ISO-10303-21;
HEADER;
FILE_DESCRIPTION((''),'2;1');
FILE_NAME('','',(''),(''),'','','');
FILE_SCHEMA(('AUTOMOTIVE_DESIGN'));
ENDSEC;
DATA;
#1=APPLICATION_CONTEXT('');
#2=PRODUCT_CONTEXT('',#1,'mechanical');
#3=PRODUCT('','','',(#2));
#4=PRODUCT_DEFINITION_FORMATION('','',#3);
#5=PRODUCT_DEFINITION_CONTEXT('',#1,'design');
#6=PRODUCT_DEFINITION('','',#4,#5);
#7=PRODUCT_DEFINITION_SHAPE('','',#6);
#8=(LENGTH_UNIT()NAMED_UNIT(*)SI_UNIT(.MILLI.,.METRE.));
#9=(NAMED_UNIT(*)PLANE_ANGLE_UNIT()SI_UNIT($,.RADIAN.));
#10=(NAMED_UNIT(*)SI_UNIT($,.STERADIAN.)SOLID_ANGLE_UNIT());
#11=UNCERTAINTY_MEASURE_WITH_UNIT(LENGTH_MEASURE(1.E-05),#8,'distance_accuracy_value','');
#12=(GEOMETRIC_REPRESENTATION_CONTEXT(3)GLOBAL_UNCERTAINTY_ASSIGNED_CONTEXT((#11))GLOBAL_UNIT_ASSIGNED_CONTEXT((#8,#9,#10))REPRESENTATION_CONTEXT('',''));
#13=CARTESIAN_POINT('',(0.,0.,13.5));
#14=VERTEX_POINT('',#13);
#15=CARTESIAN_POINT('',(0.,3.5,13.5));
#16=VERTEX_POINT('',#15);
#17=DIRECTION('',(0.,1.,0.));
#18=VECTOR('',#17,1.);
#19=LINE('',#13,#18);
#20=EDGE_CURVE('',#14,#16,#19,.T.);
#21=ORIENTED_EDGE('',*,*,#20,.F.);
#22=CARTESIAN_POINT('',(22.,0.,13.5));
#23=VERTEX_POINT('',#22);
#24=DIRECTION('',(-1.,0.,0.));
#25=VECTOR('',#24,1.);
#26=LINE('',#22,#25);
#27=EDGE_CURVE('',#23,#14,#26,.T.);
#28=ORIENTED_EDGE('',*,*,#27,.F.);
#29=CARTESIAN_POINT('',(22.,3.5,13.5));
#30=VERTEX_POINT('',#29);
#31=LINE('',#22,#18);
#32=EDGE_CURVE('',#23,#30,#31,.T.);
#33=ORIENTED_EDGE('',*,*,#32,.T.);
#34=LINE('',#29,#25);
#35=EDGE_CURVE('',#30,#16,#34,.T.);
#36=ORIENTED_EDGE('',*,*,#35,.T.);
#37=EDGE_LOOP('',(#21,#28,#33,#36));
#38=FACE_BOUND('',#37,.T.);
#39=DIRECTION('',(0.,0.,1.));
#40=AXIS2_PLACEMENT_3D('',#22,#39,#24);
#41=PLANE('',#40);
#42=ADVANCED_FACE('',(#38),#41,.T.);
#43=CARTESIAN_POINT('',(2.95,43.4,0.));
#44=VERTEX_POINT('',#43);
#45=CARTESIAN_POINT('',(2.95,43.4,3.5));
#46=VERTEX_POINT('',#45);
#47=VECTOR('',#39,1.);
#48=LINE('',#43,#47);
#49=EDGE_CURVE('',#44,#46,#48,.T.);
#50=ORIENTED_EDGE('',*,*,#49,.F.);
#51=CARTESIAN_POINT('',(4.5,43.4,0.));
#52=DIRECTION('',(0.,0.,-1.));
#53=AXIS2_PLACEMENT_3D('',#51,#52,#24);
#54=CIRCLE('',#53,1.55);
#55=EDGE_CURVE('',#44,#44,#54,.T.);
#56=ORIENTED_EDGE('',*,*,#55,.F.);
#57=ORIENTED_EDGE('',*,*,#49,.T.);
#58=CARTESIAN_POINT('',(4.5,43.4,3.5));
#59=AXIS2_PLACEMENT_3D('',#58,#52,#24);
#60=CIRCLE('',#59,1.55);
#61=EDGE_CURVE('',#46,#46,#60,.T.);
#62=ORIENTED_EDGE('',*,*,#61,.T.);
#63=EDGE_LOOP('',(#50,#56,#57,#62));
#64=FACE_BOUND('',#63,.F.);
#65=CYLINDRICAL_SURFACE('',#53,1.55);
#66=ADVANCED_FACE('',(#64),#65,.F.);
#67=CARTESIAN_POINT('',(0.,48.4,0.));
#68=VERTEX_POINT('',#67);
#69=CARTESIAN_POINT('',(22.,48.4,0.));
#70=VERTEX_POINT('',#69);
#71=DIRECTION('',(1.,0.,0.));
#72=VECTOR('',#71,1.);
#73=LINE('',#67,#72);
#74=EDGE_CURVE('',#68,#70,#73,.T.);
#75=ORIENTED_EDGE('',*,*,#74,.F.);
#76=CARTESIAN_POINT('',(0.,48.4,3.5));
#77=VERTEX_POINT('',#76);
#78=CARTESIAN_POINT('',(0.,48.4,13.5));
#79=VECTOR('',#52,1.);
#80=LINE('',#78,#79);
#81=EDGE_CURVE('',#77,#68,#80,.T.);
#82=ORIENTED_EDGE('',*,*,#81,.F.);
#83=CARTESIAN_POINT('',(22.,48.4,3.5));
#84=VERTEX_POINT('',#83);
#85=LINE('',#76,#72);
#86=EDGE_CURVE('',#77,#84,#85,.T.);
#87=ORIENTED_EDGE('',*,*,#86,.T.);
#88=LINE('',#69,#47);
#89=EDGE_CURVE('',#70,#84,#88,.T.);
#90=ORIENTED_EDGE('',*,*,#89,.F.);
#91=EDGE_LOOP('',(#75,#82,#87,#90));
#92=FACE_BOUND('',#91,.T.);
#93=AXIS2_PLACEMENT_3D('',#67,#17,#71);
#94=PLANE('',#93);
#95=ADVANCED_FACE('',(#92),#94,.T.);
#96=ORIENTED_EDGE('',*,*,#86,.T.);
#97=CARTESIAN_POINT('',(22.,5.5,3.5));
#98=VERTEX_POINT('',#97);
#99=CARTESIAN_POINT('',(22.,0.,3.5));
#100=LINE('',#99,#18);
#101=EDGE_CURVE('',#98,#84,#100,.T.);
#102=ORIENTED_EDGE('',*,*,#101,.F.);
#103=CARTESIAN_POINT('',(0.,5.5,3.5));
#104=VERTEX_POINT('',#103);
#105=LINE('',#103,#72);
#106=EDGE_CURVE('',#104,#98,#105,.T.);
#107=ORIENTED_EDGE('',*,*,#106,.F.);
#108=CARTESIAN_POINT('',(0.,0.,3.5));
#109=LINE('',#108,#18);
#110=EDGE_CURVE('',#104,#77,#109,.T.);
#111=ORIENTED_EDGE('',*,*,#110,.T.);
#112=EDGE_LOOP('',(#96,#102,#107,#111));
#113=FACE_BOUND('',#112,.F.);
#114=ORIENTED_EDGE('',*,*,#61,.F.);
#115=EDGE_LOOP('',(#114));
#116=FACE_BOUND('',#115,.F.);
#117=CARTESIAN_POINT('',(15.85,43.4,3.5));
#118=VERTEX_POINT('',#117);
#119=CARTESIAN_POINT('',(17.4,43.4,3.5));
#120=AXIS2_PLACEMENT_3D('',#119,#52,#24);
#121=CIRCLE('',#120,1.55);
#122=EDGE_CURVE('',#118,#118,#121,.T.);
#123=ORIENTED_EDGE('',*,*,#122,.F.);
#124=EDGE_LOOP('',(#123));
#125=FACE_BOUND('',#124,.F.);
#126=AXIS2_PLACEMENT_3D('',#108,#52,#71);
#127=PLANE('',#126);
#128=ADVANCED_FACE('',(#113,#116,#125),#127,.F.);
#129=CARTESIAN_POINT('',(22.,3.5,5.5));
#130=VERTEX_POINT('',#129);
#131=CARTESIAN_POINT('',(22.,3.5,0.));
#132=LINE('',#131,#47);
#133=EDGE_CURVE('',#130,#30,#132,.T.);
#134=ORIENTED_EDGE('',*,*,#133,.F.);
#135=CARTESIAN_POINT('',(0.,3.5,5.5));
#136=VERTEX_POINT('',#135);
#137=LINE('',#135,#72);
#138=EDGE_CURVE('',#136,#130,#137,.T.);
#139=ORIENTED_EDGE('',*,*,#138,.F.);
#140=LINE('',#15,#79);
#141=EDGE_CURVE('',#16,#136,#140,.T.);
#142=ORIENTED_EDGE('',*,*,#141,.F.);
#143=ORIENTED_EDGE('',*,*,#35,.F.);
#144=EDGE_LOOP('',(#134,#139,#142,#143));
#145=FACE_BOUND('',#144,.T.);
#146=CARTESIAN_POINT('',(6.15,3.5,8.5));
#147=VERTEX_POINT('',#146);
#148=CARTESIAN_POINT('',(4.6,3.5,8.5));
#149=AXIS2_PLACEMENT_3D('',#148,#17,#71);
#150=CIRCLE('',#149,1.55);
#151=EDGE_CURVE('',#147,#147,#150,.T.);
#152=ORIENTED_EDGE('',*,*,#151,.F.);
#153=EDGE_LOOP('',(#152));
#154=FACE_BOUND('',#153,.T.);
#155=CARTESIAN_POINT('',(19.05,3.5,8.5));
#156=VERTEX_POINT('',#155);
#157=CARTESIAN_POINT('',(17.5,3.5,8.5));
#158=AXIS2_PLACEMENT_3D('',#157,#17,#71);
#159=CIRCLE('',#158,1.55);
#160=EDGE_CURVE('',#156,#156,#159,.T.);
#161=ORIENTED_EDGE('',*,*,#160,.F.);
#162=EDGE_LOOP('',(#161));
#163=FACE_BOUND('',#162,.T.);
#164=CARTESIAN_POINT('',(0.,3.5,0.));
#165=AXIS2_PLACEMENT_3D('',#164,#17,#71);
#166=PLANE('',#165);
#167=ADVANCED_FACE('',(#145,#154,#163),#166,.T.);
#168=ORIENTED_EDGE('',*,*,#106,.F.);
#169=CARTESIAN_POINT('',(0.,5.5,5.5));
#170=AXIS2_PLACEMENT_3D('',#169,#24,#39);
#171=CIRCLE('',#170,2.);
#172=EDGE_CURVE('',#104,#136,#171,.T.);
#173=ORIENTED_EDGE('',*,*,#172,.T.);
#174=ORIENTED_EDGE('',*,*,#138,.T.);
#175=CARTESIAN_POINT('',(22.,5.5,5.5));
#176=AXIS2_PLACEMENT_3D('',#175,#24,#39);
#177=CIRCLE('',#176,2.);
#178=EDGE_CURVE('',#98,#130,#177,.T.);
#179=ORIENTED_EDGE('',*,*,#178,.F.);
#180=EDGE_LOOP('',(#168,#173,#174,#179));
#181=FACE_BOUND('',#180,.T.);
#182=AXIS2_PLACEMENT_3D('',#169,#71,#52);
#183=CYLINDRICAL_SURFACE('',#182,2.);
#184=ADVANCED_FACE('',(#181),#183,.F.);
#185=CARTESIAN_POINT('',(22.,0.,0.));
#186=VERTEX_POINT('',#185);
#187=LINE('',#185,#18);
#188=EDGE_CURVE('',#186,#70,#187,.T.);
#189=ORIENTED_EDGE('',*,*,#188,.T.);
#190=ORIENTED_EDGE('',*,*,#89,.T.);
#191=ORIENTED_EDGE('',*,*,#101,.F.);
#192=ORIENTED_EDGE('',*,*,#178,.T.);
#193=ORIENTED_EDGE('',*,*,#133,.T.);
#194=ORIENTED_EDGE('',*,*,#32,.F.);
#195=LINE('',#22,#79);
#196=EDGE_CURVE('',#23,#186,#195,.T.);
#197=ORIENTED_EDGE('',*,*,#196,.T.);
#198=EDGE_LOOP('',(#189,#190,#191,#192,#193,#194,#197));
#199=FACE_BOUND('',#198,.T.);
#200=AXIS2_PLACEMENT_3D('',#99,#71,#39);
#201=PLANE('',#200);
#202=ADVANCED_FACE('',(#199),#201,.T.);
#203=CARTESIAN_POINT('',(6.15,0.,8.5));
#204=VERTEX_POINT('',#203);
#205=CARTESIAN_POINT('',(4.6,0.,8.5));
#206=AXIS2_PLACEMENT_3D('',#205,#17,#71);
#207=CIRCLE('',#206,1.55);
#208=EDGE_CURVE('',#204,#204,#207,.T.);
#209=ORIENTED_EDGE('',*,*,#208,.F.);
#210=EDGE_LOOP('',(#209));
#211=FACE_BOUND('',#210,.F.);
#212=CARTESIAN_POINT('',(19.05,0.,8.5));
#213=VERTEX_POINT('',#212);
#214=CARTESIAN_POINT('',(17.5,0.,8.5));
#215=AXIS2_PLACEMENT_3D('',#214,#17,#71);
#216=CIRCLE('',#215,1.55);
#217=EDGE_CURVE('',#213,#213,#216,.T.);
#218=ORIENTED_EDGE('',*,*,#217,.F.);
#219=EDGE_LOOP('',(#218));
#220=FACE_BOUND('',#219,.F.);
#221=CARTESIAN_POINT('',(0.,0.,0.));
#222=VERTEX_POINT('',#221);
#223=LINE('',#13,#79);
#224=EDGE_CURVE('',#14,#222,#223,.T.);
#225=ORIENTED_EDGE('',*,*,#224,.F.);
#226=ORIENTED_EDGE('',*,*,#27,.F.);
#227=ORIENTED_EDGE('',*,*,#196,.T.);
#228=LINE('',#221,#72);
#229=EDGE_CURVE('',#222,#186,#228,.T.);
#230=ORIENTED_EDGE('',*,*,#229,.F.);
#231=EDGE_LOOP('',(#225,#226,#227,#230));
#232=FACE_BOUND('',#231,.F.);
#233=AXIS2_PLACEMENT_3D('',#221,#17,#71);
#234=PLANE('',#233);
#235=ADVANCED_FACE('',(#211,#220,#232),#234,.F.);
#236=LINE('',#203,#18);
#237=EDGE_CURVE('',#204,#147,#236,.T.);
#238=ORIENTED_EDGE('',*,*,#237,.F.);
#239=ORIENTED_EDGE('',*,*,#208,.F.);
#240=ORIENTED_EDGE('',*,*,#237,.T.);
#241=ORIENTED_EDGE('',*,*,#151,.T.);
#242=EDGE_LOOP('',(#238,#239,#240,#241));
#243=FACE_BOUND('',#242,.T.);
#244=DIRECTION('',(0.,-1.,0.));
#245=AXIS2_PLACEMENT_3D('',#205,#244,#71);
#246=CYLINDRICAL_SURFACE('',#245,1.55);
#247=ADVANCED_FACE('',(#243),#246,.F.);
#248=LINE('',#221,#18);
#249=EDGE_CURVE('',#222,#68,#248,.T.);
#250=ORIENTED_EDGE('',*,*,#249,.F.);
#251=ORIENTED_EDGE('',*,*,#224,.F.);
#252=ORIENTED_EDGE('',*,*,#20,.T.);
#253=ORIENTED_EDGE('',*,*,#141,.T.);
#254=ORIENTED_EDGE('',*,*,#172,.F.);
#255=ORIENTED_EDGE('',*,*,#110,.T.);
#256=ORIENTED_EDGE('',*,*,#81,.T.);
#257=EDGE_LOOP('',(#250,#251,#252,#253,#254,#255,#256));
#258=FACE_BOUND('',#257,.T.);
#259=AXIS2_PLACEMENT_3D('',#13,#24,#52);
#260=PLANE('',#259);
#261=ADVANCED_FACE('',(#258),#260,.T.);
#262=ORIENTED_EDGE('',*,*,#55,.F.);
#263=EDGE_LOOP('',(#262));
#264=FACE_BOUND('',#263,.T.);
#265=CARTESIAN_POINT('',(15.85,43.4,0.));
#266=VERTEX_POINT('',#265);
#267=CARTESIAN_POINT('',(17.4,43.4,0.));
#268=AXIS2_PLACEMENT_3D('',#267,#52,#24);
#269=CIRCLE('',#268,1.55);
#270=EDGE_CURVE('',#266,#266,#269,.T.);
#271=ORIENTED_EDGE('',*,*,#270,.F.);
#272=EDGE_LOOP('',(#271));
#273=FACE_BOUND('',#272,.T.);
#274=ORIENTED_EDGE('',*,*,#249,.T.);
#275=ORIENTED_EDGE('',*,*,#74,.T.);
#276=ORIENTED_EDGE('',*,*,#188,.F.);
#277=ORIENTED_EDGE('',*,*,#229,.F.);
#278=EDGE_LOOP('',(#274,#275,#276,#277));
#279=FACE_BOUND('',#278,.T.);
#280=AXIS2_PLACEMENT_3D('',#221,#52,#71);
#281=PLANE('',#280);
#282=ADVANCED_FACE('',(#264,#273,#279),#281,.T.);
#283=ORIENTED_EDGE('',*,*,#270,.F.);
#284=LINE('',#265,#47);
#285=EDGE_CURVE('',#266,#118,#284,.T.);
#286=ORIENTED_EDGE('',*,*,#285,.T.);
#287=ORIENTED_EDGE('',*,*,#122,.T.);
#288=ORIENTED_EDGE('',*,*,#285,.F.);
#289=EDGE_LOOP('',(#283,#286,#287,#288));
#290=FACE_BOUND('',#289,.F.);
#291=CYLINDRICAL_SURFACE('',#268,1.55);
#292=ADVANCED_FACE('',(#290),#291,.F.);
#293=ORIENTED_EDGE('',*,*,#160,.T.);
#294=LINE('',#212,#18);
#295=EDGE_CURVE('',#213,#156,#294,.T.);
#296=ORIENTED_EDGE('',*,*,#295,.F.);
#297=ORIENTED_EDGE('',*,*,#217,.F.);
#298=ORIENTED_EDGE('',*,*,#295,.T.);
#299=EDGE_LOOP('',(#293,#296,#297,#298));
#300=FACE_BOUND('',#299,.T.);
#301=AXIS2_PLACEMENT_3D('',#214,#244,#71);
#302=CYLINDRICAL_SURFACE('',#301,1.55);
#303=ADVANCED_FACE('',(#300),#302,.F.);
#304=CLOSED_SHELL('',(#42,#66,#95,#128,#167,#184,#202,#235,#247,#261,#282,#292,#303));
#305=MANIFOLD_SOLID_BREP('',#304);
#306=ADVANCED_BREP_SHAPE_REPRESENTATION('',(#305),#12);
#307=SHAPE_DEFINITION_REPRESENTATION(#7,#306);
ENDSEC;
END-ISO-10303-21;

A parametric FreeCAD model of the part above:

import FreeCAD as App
import Part
import Sketcher


def edges_at(feature, points):
    """Names of the edges that pass closest to the given points."""
    edges = feature.Shape.Edges
    near = lambda p: min(range(len(edges)), key=lambda i: edges[i].distToShape(Part.Vertex(*p))[0])
    return sorted({f"Edge{near(p) + 1}" for p in points})


def add_polygon(sketch, points):
    """Adds a closed chain of lines whose ends are joined by coincident constraints."""
    first, n = sketch.GeometryCount, len(points)
    for a, b in zip(points, points[1:] + points[:1]):
        sketch.addGeometry(Part.LineSegment(App.Vector(*a, 0), App.Vector(*b, 0)), False)
    for i in range(n):
        sketch.addConstraint(Sketcher.Constraint("Coincident", first + i, 2, first + (i + 1) % n, 1))

doc = App.newDocument("Part")
params = doc.addObject("Spreadsheet::Sheet", "Params")
for row, (alias, value) in enumerate([
    ("sketch1_diameter", "3.1 mm"),
    ("sketch1_width", "22 mm"),
    ("pad1_length", "3.5 mm"),
    ("sketch2_width", "22 mm"),
    ("sketch2_height", "3.5 mm"),
    ("pad2_length", "48.4 mm"),
    ("sketch3_diameter", "3.1 mm"),
    ("pocket1_length", "3.5 mm"),
    ("fillet_radius", "2 mm"),
], start=1):
    params.set(f"A{row}", alias)
    params.set(f"B{row}", "=" + value)
    params.setAlias(f"B{row}", alias)

body = doc.addObject("PartDesign::Body", "Body")

# Sketch on XZ plane
sketch1 = doc.addObject("Sketcher::SketchObject", "Sketch")
body.addObject(sketch1)
sketch1.AttachmentSupport = (doc.XZ_Plane, [""])
sketch1.MapMode = "FlatFace"
add_polygon(sketch1, [(22, 3.5), (0, 3.5), (0, 13.5), (22, 13.5)])  # lines 0-3
sketch1.addGeometry(Part.Circle(App.Vector(4.6, 8.5, 0), App.Vector(0, 0, 1), 1.6), False)  # 4
sketch1.addGeometry(Part.Circle(App.Vector(17.5, 8.5, 0), App.Vector(0, 0, 1), 1.6), False)  # 5
sketch1.addConstraint(Sketcher.Constraint("Horizontal", 0))
sketch1.addConstraint(Sketcher.Constraint("Vertical", 1))
sketch1.addConstraint(Sketcher.Constraint("Horizontal", 2))
sketch1.addConstraint(Sketcher.Constraint("Vertical", 3))
sketch1.addConstraint(Sketcher.Constraint("Equal", 4, 5))
sketch1.addConstraint(Sketcher.Constraint("PointOnObject", 0, 2, -2))
sketch1.addConstraint(Sketcher.Constraint("Horizontal", 4, 3, 5, 3))
sketch1.addConstraint(Sketcher.Constraint("Diameter", 4, 3.1))
sketch1.addConstraint(Sketcher.Constraint("DistanceX", 0, 2, 0, 1, 22.0))
sketch1.addConstraint(Sketcher.Constraint("DistanceY", 0, 2, 4, 3, 5.0))
sketch1.addConstraint(Sketcher.Constraint("DistanceY", 4, 3, 1, 2, 5.0))
sketch1.addConstraint(Sketcher.Constraint("DistanceY", -1, 1, 0, 2, 3.5))
sketch1.addConstraint(Sketcher.Constraint("DistanceX", 4, 3, 5, 3, 12.9))
sketch1.addConstraint(Sketcher.Constraint("DistanceX", 5, 3, 2, 2, 4.5))
sketch1.setExpression("Constraints[11]", "Params.sketch1_diameter")
sketch1.setExpression("Constraints[12]", "Params.sketch1_width")
pad1 = doc.addObject("PartDesign::Pad", "Pad")
body.addObject(pad1)
pad1.Profile = sketch1
pad1.setExpression("Length", "Params.pad1_length")
pad1.Reversed = True

# Sketch on XZ plane
sketch2 = doc.addObject("Sketcher::SketchObject", "Sketch001")
body.addObject(sketch2)
sketch2.AttachmentSupport = (doc.XZ_Plane, [""])
sketch2.MapMode = "FlatFace"
add_polygon(sketch2, [(22, 0), (0, 0), (0, 3.5), (22, 3.5)])  # lines 0-3
sketch2.addConstraint(Sketcher.Constraint("Horizontal", 0))
sketch2.addConstraint(Sketcher.Constraint("Vertical", 1))
sketch2.addConstraint(Sketcher.Constraint("Horizontal", 2))
sketch2.addConstraint(Sketcher.Constraint("Vertical", 3))
sketch2.addConstraint(Sketcher.Constraint("Coincident", 0, 2, -1, 1))
sketch2.addConstraint(Sketcher.Constraint("DistanceX", 0, 2, 0, 1, 22.0))
sketch2.addConstraint(Sketcher.Constraint("DistanceY", 1, 1, 1, 2, 3.5))
sketch2.setExpression("Constraints[9]", "Params.sketch2_width")
sketch2.setExpression("Constraints[10]", "Params.sketch2_height")
pad2 = doc.addObject("PartDesign::Pad", "Pad001")
body.addObject(pad2)
pad2.Profile = sketch2
pad2.setExpression("Length", "Params.pad2_length")
pad2.Reversed = True

# Sketch on XY plane
sketch3 = doc.addObject("Sketcher::SketchObject", "Sketch002")
body.addObject(sketch3)
sketch3.AttachmentSupport = (doc.XY_Plane, [""])
sketch3.MapMode = "FlatFace"
sketch3.addGeometry(Part.Circle(App.Vector(17.4, 43.4, 0), App.Vector(0, 0, 1), 1.6), False)
sketch3.addGeometry(Part.Circle(App.Vector(4.5, 43.4, 0), App.Vector(0, 0, 1), 1.6), False)
sketch3.addConstraint(Sketcher.Constraint("Equal", 0, 1))
sketch3.addConstraint(Sketcher.Constraint("Horizontal", 0, 3, 1, 3))
sketch3.addConstraint(Sketcher.Constraint("Diameter", 0, 3.1))
sketch3.addConstraint(Sketcher.Constraint("DistanceY", -1, 1, 0, 3, 43.4))
sketch3.addConstraint(Sketcher.Constraint("DistanceX", -1, 1, 1, 3, 4.5))
sketch3.addConstraint(Sketcher.Constraint("DistanceX", 1, 3, 0, 3, 12.9))
sketch3.setExpression("Constraints[2]", "Params.sketch3_diameter")
pocket1 = doc.addObject("PartDesign::Pocket", "Pocket")
body.addObject(pocket1)
pocket1.Profile = sketch3
pocket1.setExpression("Length", "Params.pocket1_length")
pocket1.Reversed = True
doc.recompute()

fillet = doc.addObject("PartDesign::Fillet", "Fillet")
body.addObject(fillet)
fillet.Base = (pocket1, edges_at(pocket1, [(11, 3.5, 3.5)]))
fillet.setExpression("Radius", "Params.fillet_radius")

doc.recompute()
